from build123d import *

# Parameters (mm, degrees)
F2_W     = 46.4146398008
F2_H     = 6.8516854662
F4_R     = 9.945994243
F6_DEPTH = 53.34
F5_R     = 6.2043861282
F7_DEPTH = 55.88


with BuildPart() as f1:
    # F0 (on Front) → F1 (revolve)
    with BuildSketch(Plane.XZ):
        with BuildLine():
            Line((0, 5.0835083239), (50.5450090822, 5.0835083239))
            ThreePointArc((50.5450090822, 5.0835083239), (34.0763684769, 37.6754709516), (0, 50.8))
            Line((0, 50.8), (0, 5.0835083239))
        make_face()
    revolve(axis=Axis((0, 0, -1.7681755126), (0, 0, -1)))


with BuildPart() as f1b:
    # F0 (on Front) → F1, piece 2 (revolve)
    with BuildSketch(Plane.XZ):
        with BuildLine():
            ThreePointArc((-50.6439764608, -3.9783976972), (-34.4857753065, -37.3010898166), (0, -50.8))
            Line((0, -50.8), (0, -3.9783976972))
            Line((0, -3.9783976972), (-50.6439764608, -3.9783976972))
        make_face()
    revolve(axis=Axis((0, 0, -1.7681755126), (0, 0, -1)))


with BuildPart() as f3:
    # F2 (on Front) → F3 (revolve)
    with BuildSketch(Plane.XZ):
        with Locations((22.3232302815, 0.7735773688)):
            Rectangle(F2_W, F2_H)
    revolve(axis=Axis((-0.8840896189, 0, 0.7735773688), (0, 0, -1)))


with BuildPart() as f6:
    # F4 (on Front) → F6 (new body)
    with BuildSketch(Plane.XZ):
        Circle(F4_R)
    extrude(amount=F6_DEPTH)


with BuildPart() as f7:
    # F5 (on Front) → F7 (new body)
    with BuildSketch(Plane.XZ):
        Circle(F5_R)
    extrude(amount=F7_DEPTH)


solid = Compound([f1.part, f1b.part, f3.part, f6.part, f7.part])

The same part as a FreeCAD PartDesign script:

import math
import FreeCAD as App
import Part
import Sketcher
Q = App.Units.Quantity

doc = App.newDocument("Part")
body = doc.addObject("PartDesign::Body", "Body")

# Sketch on XZ plane
sketch1 = body.newObject("Sketcher::SketchObject", "Sketch")
sketch1.AttachmentSupport = (doc.getObject("XZ_Plane"), [""])
sketch1.MapMode = "FlatFace"
sketch1.addGeometry(Part.LineSegment(App.Vector(0, 5, 0), App.Vector(51, 5, 0)), False)
sketch1.addGeometry(Part.ArcOfCircle(Part.Circle(App.Vector(0, 0, 0), App.Vector(0, 0, 1), 51), math.radians(6), math.radians(90)), False)
sketch1.addGeometry(Part.LineSegment(App.Vector(0, 51, 0), App.Vector(0, 5, 0)), False)
sketch1.addConstraint(Sketcher.Constraint("Coincident", 0, 2, 1, 1))
sketch1.addConstraint(Sketcher.Constraint("Coincident", 1, 2, 2, 1))
sketch1.addConstraint(Sketcher.Constraint("Coincident", 2, 2, 0, 1))
sketch1.addConstraint(Sketcher.Constraint("Horizontal", 0))
sketch1.addConstraint(Sketcher.Constraint("Vertical", 2))
sketch1.addConstraint(Sketcher.Constraint("Coincident", 1, 3, -1, 1))
sketch1.addConstraint(Sketcher.Constraint("PointOnObject", 1, 2, -2))
sketch1.addConstraint(Sketcher.Constraint("Radius", 1, Q("2 in")))
sketch1.addConstraint(Sketcher.Constraint("DistanceX", 0, 1, 0, 2, 50.545009))
revolution = body.newObject("PartDesign::Revolution", "Revolution")
revolution.Profile = sketch1
revolution.ReferenceAxis = (sketch1, ["V_Axis"])
revolution.Angle = 360
body2 = doc.addObject("PartDesign::Body", "Body001")

# Sketch on XZ plane
sketch2 = body2.newObject("Sketcher::SketchObject", "Sketch001")
sketch2.AttachmentSupport = (doc.getObject("XZ_Plane001"), [""])
sketch2.MapMode = "FlatFace"
sketch2.addGeometry(Part.ArcOfCircle(Part.Circle(App.Vector(0, 0, 0), App.Vector(0, 0, 1), 51), math.radians(-176), math.radians(-90)), False)
sketch2.addGeometry(Part.LineSegment(App.Vector(0, -51, 0), App.Vector(0, -4, 0)), False)
sketch2.addGeometry(Part.LineSegment(App.Vector(0, -4, 0), App.Vector(-51, -4, 0)), False)
sketch2.addConstraint(Sketcher.Constraint("Coincident", 0, 2, 1, 1))
sketch2.addConstraint(Sketcher.Constraint("Coincident", 1, 2, 2, 1))
sketch2.addConstraint(Sketcher.Constraint("Coincident", 2, 2, 0, 1))
sketch2.addConstraint(Sketcher.Constraint("Vertical", 1))
sketch2.addConstraint(Sketcher.Constraint("Horizontal", 2))
sketch2.addConstraint(Sketcher.Constraint("Coincident", 0, 3, -1, 1))
sketch2.addConstraint(Sketcher.Constraint("PointOnObject", 0, 2, -2))
sketch2.addConstraint(Sketcher.Constraint("Radius", 0, Q("2 in")))
sketch2.addConstraint(Sketcher.Constraint("DistanceX", 2, 2, 2, 1, 50.643976))
revolution2 = body2.newObject("PartDesign::Revolution", "Revolution001")
revolution2.Profile = sketch2
revolution2.ReferenceAxis = (sketch2, ["V_Axis"])
revolution2.Angle = 360
body3 = doc.addObject("PartDesign::Body", "Body002")

# Sketch on XZ plane
sketch3 = body3.newObject("Sketcher::SketchObject", "Sketch002")
sketch3.AttachmentSupport = (doc.getObject("XZ_Plane002"), [""])
sketch3.MapMode = "FlatFace"
sketch3.addGeometry(Part.LineSegment(App.Vector(-1, 4, 0), App.Vector(-1, -3, 0)), False)
sketch3.addGeometry(Part.LineSegment(App.Vector(-1, -3, 0), App.Vector(46, -3, 0)), False)
sketch3.addGeometry(Part.LineSegment(App.Vector(46, -3, 0), App.Vector(46, 4, 0)), False)
sketch3.addGeometry(Part.LineSegment(App.Vector(46, 4, 0), App.Vector(-1, 4, 0)), False)
sketch3.addGeometry(Part.LineSegment(App.Vector(-1, 4, 0), App.Vector(-1, -3, 0)), True)  # axis
sketch3.addConstraint(Sketcher.Constraint("Coincident", 0, 2, 1, 1))
sketch3.addConstraint(Sketcher.Constraint("Coincident", 1, 2, 2, 1))
sketch3.addConstraint(Sketcher.Constraint("Coincident", 2, 2, 3, 1))
sketch3.addConstraint(Sketcher.Constraint("Coincident", 3, 2, 0, 1))
sketch3.addConstraint(Sketcher.Constraint("Vertical", 0))
sketch3.addConstraint(Sketcher.Constraint("Horizontal", 1))
sketch3.addConstraint(Sketcher.Constraint("Vertical", 2))
sketch3.addConstraint(Sketcher.Constraint("Horizontal", 3))
sketch3.addConstraint(Sketcher.Constraint("Vertical", 4))
sketch3.addConstraint(Sketcher.Constraint("Coincident", 4, 1, 3, 2))
sketch3.addConstraint(Sketcher.Constraint("Horizontal", 1, 2, 4, 2))
sketch3.addConstraint(Sketcher.Constraint("DistanceX", 1, 1, 1, 2, 46.41464))
sketch3.addConstraint(Sketcher.Constraint("DistanceY", 0, 2, 0, 1, 6.851685))
sketch3.addConstraint(Sketcher.Constraint("DistanceX", 0, 2, -1, 1, 0.88409))
sketch3.addConstraint(Sketcher.Constraint("DistanceY", -1, 1, 2, 2, 4.19942))
revolution3 = body3.newObject("PartDesign::Revolution", "Revolution002")
revolution3.Profile = sketch3
revolution3.ReferenceAxis = (sketch3, ["Axis0"])
revolution3.Angle = 360
body4 = doc.addObject("PartDesign::Body", "Body003")

# Sketch on XZ plane
sketch4 = body4.newObject("Sketcher::SketchObject", "Sketch003")
sketch4.AttachmentSupport = (doc.getObject("XZ_Plane003"), [""])
sketch4.MapMode = "FlatFace"
sketch4.addGeometry(Part.Circle(App.Vector(0, 0, 0), App.Vector(0, 0, 1), 10), False)
sketch4.addConstraint(Sketcher.Constraint("Coincident", 0, 3, -1, 1))
sketch4.addConstraint(Sketcher.Constraint("Diameter", 0, 19.891988))
pad1 = body4.newObject("PartDesign::Pad", "Pad")
pad1.Profile = sketch4
pad1.Length = Q("2.1 in")
body5 = doc.addObject("PartDesign::Body", "Body004")

# Sketch on XZ plane
sketch5 = body5.newObject("Sketcher::SketchObject", "Sketch004")
sketch5.AttachmentSupport = (doc.getObject("XZ_Plane004"), [""])
sketch5.MapMode = "FlatFace"
sketch5.addGeometry(Part.Circle(App.Vector(0, 0, 0), App.Vector(0, 0, 1), 6), False)
sketch5.addConstraint(Sketcher.Constraint("Coincident", 0, 3, -1, 1))
sketch5.addConstraint(Sketcher.Constraint("Diameter", 0, 12.408772))
pad2 = body5.newObject("PartDesign::Pad", "Pad001")
pad2.Profile = sketch5
pad2.Length = Q("2.2 in")

doc.recompute()
